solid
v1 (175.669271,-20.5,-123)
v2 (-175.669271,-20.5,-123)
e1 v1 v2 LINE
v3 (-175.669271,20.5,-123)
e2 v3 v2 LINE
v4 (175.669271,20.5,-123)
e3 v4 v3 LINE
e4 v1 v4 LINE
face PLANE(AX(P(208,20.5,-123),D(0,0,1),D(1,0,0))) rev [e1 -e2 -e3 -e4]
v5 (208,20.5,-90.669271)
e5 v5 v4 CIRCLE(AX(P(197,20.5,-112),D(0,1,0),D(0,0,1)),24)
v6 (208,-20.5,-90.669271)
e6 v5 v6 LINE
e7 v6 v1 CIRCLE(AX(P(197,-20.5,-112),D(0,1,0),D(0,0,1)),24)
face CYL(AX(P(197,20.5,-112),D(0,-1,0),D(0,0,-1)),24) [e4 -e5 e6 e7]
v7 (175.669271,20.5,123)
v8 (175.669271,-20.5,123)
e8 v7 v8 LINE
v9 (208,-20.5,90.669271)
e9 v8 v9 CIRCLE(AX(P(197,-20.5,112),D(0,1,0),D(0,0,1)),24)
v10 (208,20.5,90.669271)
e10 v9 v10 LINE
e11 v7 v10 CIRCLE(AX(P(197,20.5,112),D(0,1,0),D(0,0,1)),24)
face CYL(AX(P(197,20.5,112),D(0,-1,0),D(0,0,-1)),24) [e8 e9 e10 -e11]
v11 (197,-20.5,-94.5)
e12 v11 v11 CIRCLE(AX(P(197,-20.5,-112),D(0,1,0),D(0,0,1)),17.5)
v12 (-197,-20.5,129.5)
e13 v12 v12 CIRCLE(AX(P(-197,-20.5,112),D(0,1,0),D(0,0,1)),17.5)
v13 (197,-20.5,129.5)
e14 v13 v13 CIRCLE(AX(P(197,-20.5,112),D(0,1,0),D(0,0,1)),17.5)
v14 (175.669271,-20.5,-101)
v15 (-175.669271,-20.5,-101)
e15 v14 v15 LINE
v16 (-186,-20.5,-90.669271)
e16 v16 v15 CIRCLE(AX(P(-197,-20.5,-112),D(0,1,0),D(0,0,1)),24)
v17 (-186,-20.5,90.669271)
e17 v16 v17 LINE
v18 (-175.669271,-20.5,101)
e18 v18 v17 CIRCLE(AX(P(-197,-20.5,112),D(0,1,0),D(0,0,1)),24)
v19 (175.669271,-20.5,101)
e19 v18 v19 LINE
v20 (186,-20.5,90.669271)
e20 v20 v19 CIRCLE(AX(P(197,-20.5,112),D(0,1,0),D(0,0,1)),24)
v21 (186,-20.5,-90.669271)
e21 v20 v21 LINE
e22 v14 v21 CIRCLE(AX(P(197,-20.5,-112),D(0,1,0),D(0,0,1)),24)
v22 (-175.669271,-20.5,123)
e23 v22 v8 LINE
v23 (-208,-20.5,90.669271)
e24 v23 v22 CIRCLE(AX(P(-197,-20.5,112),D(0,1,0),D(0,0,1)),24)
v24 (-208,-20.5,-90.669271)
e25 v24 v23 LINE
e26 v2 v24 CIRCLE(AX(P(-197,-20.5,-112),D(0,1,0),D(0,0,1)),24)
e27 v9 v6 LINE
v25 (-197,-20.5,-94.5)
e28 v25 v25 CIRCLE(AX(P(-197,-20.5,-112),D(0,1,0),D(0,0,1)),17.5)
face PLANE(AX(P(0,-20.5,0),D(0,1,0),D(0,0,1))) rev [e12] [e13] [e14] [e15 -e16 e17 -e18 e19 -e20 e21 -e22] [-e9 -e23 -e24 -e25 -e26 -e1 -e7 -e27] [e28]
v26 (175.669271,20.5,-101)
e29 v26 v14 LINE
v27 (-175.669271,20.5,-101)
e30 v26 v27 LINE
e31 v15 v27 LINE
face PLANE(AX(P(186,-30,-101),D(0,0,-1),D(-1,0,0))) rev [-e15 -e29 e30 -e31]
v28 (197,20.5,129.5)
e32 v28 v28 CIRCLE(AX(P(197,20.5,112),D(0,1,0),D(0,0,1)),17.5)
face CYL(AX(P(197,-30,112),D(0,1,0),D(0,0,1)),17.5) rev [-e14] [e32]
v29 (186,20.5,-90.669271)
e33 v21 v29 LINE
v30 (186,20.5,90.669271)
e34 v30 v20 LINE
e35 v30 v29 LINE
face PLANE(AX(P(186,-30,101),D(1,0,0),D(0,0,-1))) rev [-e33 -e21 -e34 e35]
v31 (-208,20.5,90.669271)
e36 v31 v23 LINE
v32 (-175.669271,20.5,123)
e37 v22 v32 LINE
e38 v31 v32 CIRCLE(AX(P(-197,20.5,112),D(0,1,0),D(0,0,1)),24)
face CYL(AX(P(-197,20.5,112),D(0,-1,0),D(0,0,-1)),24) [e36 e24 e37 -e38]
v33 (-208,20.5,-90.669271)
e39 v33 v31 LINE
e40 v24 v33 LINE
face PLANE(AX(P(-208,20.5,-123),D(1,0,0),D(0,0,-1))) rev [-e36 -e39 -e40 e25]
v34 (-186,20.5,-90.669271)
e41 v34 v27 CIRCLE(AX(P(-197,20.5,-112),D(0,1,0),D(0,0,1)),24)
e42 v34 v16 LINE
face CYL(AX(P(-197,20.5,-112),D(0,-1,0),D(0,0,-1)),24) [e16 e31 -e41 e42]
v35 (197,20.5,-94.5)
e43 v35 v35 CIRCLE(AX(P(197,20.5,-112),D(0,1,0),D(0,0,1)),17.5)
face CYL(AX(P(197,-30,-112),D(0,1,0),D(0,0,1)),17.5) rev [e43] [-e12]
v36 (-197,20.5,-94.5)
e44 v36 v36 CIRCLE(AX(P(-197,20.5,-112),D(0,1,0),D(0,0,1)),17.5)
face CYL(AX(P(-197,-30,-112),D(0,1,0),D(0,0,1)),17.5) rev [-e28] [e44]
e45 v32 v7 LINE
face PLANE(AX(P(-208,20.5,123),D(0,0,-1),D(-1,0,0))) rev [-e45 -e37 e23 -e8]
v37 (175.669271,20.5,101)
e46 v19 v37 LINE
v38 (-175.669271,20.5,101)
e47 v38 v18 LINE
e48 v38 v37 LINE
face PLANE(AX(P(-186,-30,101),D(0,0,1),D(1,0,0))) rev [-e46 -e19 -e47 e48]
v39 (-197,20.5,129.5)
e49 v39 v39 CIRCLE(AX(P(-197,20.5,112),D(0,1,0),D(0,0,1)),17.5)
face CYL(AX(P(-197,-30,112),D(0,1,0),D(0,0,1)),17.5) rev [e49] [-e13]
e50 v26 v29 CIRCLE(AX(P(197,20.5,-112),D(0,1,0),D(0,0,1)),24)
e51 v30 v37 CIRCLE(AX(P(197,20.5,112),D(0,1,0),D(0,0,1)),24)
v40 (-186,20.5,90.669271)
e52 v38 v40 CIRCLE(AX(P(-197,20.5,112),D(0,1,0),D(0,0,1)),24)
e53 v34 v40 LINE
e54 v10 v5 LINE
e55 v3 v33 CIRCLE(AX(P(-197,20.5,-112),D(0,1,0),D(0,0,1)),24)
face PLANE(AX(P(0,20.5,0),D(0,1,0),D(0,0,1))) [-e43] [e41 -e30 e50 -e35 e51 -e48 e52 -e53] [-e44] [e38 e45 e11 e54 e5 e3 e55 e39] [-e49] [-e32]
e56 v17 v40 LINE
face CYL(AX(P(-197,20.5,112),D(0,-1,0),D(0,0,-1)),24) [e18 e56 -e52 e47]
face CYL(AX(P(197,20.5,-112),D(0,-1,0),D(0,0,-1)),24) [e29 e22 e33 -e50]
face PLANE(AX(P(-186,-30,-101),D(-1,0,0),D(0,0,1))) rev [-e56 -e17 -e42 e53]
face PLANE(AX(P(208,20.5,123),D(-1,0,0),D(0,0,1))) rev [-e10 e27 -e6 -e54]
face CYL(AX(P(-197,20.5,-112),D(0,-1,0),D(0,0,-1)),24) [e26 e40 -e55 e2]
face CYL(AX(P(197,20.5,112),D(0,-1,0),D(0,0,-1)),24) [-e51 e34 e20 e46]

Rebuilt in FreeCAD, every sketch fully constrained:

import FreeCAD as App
import Part
import Sketcher
Q = App.Units.Quantity


def add_polygon(sketch, points):
    """Adds a closed chain of lines whose ends are joined by coincident constraints."""
    first, n = sketch.GeometryCount, len(points)
    for a, b in zip(points, points[1:] + points[:1]):
        sketch.addGeometry(Part.LineSegment(App.Vector(*a, 0), App.Vector(*b, 0)), False)
    for i in range(n):
        sketch.addConstraint(Sketcher.Constraint("Coincident", first + i, 2, first + (i + 1) % n, 1))

doc = App.newDocument("Part")
body = doc.addObject("PartDesign::Body", "Body")

# Sketch on XZ plane
sketch1 = body.newObject("Sketcher::SketchObject", "Sketch")
sketch1.AttachmentSupport = (doc.getObject("XZ_Plane"), [""])
sketch1.MapMode = "FlatFace"
add_polygon(sketch1, [(-208, -123), (-208, 123), (208, 123), (208, -123)])  # lines 0-3
sketch1.addConstraint([
    Sketcher.Constraint("Vertical", 0),
    Sketcher.Constraint("Horizontal", 1),
    Sketcher.Constraint("Vertical", 2),
    Sketcher.Constraint("Horizontal", 3),
    Sketcher.Constraint("Symmetric", 0, 2, 2, 2, -1, 1),
    Sketcher.Constraint("DistanceX", 1, 1, 1, 2, Q("416 mm")),
    Sketcher.Constraint("DistanceY", 0, 1, 0, 2, Q("246 mm")),
])
pad1 = body.newObject("PartDesign::Pad", "Pad")
pad1.Profile = sketch1
pad1.Length = 41
pad1.Midplane = True

# Sketch on XZ plane
sketch2 = body.newObject("Sketcher::SketchObject", "Sketch001")
sketch2.AttachmentSupport = (doc.getObject("XZ_Plane"), [""])
sketch2.MapMode = "FlatFace"
add_polygon(sketch2, [(-186, -101), (-186, 101), (186, 101), (186, -101)])  # lines 0-3
sketch2.addConstraint([
    Sketcher.Constraint("Vertical", 0),
    Sketcher.Constraint("Horizontal", 1),
    Sketcher.Constraint("Vertical", 2),
    Sketcher.Constraint("Horizontal", 3),
    Sketcher.Constraint("Symmetric", 0, 2, 2, 2, -1, 1),
    Sketcher.Constraint("DistanceX", 1, 1, 1, 2, Q("372 mm")),
    Sketcher.Constraint("DistanceY", 0, 1, 0, 2, Q("202 mm")),
])
pocket1 = body.newObject("PartDesign::Pocket", "Pocket")
pocket1.Profile = sketch2
pocket1.Length = 60
pocket1.Midplane = True

# Sketch on XZ plane
sketch3 = body.newObject("Sketcher::SketchObject", "Sketch002")
sketch3.AttachmentSupport = (doc.getObject("XZ_Plane"), [""])
sketch3.MapMode = "FlatFace"
sketch3.addGeometry([
    Part.Circle(App.Vector(-197, 112, 0), App.Vector(0, 0, 1), 24),
    Part.Circle(App.Vector(-197, -112, 0), App.Vector(0, 0, 1), 24),
    Part.Circle(App.Vector(197, 112, 0), App.Vector(0, 0, 1), 24),
    Part.Circle(App.Vector(197, -112, 0), App.Vector(0, 0, 1), 24),
], False)
sketch3.addConstraint([
    Sketcher.Constraint("Equal", 0, 1),
    Sketcher.Constraint("Equal", 1, 2),
    Sketcher.Constraint("Equal", 2, 3),
    Sketcher.Constraint("Symmetric", 1, 3, 2, 3, -1, 1),
    Sketcher.Constraint("Symmetric", 0, 3, 3, 3, -1, 1),
    Sketcher.Constraint("Symmetric", 0, 3, 2, 3, -2),
    Sketcher.Constraint("Diameter", 0, Q("48 mm")),
    Sketcher.Constraint("DistanceX", 0, 3, -1, 1, Q("197 mm")),
    Sketcher.Constraint("DistanceY", -1, 1, 0, 3, Q("112 mm")),
])
pad2 = body.newObject("PartDesign::Pad", "Pad001")
pad2.Profile = sketch3
pad2.Length = 41
pad2.Midplane = True

# Sketch on XZ plane
sketch4 = body.newObject("Sketcher::SketchObject", "Sketch003")
sketch4.AttachmentSupport = (doc.getObject("XZ_Plane"), [""])
sketch4.MapMode = "FlatFace"
sketch4.addGeometry([
    Part.Circle(App.Vector(-197, 112, 0), App.Vector(0, 0, 1), 18),
    Part.Circle(App.Vector(-197, -112, 0), App.Vector(0, 0, 1), 18),
    Part.Circle(App.Vector(197, 112, 0), App.Vector(0, 0, 1), 18),
    Part.Circle(App.Vector(197, -112, 0), App.Vector(0, 0, 1), 18),
], False)
sketch4.addConstraint([
    Sketcher.Constraint("Equal", 0, 1),
    Sketcher.Constraint("Equal", 1, 2),
    Sketcher.Constraint("Equal", 2, 3),
    Sketcher.Constraint("Symmetric", 1, 3, 2, 3, -1, 1),
    Sketcher.Constraint("Symmetric", 0, 3, 3, 3, -1, 1),
    Sketcher.Constraint("Symmetric", 0, 3, 2, 3, -2),
    Sketcher.Constraint("Diameter", 0, Q("35 mm")),
    Sketcher.Constraint("DistanceX", 0, 3, -1, 1, Q("197 mm")),
    Sketcher.Constraint("DistanceY", -1, 1, 0, 3, Q("112 mm")),
])
pocket2 = body.newObject("PartDesign::Pocket", "Pocket001")
pocket2.Profile = sketch4
pocket2.Length = 60
pocket2.Midplane = True

doc.recompute()
